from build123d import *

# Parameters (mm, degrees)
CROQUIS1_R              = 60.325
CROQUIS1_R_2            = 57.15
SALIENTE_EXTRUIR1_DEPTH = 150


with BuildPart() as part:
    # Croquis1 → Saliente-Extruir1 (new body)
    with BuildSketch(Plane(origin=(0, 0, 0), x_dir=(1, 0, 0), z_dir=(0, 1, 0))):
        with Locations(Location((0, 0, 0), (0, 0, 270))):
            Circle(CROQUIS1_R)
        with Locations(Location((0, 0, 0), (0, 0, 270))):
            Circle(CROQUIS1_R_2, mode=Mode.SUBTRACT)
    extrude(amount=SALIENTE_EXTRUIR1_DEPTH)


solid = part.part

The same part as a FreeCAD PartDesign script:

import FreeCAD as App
import Part
import Sketcher
from FreeCAD import Vector
Q = App.Units.Quantity

doc = App.newDocument("Part")
body = doc.addObject("PartDesign::Body", "Body")

sketch1 = body.newObject("Sketcher::SketchObject", "Sketch")
sketch1.AttachmentSupport = (doc.getObject("XZ_Plane"), [""])
sketch1.MapMode = "FlatFace"
sketch1.addGeometry([
    Part.Circle(Vector(0, 0, 0), Vector(0, 0, 1), 60.325),
    Part.Circle(Vector(0, 0, 0), Vector(0, 0, 1), 57.15),
], False)
sketch1.addConstraint([
    Sketcher.Constraint("Coincident", 0, 3, -1, 1),
    Sketcher.Constraint("Coincident", 1, 3, -1, 1),
    Sketcher.Constraint("Diameter", 1, Q("4.5 in")),
    Sketcher.Constraint("Diameter", 0, Q("4.75 in")),
])
pad1 = body.newObject("PartDesign::Pad", "Pad")
pad1.Profile = sketch1
pad1.Length = 150
pad1.Reversed = True

doc.recompute()
